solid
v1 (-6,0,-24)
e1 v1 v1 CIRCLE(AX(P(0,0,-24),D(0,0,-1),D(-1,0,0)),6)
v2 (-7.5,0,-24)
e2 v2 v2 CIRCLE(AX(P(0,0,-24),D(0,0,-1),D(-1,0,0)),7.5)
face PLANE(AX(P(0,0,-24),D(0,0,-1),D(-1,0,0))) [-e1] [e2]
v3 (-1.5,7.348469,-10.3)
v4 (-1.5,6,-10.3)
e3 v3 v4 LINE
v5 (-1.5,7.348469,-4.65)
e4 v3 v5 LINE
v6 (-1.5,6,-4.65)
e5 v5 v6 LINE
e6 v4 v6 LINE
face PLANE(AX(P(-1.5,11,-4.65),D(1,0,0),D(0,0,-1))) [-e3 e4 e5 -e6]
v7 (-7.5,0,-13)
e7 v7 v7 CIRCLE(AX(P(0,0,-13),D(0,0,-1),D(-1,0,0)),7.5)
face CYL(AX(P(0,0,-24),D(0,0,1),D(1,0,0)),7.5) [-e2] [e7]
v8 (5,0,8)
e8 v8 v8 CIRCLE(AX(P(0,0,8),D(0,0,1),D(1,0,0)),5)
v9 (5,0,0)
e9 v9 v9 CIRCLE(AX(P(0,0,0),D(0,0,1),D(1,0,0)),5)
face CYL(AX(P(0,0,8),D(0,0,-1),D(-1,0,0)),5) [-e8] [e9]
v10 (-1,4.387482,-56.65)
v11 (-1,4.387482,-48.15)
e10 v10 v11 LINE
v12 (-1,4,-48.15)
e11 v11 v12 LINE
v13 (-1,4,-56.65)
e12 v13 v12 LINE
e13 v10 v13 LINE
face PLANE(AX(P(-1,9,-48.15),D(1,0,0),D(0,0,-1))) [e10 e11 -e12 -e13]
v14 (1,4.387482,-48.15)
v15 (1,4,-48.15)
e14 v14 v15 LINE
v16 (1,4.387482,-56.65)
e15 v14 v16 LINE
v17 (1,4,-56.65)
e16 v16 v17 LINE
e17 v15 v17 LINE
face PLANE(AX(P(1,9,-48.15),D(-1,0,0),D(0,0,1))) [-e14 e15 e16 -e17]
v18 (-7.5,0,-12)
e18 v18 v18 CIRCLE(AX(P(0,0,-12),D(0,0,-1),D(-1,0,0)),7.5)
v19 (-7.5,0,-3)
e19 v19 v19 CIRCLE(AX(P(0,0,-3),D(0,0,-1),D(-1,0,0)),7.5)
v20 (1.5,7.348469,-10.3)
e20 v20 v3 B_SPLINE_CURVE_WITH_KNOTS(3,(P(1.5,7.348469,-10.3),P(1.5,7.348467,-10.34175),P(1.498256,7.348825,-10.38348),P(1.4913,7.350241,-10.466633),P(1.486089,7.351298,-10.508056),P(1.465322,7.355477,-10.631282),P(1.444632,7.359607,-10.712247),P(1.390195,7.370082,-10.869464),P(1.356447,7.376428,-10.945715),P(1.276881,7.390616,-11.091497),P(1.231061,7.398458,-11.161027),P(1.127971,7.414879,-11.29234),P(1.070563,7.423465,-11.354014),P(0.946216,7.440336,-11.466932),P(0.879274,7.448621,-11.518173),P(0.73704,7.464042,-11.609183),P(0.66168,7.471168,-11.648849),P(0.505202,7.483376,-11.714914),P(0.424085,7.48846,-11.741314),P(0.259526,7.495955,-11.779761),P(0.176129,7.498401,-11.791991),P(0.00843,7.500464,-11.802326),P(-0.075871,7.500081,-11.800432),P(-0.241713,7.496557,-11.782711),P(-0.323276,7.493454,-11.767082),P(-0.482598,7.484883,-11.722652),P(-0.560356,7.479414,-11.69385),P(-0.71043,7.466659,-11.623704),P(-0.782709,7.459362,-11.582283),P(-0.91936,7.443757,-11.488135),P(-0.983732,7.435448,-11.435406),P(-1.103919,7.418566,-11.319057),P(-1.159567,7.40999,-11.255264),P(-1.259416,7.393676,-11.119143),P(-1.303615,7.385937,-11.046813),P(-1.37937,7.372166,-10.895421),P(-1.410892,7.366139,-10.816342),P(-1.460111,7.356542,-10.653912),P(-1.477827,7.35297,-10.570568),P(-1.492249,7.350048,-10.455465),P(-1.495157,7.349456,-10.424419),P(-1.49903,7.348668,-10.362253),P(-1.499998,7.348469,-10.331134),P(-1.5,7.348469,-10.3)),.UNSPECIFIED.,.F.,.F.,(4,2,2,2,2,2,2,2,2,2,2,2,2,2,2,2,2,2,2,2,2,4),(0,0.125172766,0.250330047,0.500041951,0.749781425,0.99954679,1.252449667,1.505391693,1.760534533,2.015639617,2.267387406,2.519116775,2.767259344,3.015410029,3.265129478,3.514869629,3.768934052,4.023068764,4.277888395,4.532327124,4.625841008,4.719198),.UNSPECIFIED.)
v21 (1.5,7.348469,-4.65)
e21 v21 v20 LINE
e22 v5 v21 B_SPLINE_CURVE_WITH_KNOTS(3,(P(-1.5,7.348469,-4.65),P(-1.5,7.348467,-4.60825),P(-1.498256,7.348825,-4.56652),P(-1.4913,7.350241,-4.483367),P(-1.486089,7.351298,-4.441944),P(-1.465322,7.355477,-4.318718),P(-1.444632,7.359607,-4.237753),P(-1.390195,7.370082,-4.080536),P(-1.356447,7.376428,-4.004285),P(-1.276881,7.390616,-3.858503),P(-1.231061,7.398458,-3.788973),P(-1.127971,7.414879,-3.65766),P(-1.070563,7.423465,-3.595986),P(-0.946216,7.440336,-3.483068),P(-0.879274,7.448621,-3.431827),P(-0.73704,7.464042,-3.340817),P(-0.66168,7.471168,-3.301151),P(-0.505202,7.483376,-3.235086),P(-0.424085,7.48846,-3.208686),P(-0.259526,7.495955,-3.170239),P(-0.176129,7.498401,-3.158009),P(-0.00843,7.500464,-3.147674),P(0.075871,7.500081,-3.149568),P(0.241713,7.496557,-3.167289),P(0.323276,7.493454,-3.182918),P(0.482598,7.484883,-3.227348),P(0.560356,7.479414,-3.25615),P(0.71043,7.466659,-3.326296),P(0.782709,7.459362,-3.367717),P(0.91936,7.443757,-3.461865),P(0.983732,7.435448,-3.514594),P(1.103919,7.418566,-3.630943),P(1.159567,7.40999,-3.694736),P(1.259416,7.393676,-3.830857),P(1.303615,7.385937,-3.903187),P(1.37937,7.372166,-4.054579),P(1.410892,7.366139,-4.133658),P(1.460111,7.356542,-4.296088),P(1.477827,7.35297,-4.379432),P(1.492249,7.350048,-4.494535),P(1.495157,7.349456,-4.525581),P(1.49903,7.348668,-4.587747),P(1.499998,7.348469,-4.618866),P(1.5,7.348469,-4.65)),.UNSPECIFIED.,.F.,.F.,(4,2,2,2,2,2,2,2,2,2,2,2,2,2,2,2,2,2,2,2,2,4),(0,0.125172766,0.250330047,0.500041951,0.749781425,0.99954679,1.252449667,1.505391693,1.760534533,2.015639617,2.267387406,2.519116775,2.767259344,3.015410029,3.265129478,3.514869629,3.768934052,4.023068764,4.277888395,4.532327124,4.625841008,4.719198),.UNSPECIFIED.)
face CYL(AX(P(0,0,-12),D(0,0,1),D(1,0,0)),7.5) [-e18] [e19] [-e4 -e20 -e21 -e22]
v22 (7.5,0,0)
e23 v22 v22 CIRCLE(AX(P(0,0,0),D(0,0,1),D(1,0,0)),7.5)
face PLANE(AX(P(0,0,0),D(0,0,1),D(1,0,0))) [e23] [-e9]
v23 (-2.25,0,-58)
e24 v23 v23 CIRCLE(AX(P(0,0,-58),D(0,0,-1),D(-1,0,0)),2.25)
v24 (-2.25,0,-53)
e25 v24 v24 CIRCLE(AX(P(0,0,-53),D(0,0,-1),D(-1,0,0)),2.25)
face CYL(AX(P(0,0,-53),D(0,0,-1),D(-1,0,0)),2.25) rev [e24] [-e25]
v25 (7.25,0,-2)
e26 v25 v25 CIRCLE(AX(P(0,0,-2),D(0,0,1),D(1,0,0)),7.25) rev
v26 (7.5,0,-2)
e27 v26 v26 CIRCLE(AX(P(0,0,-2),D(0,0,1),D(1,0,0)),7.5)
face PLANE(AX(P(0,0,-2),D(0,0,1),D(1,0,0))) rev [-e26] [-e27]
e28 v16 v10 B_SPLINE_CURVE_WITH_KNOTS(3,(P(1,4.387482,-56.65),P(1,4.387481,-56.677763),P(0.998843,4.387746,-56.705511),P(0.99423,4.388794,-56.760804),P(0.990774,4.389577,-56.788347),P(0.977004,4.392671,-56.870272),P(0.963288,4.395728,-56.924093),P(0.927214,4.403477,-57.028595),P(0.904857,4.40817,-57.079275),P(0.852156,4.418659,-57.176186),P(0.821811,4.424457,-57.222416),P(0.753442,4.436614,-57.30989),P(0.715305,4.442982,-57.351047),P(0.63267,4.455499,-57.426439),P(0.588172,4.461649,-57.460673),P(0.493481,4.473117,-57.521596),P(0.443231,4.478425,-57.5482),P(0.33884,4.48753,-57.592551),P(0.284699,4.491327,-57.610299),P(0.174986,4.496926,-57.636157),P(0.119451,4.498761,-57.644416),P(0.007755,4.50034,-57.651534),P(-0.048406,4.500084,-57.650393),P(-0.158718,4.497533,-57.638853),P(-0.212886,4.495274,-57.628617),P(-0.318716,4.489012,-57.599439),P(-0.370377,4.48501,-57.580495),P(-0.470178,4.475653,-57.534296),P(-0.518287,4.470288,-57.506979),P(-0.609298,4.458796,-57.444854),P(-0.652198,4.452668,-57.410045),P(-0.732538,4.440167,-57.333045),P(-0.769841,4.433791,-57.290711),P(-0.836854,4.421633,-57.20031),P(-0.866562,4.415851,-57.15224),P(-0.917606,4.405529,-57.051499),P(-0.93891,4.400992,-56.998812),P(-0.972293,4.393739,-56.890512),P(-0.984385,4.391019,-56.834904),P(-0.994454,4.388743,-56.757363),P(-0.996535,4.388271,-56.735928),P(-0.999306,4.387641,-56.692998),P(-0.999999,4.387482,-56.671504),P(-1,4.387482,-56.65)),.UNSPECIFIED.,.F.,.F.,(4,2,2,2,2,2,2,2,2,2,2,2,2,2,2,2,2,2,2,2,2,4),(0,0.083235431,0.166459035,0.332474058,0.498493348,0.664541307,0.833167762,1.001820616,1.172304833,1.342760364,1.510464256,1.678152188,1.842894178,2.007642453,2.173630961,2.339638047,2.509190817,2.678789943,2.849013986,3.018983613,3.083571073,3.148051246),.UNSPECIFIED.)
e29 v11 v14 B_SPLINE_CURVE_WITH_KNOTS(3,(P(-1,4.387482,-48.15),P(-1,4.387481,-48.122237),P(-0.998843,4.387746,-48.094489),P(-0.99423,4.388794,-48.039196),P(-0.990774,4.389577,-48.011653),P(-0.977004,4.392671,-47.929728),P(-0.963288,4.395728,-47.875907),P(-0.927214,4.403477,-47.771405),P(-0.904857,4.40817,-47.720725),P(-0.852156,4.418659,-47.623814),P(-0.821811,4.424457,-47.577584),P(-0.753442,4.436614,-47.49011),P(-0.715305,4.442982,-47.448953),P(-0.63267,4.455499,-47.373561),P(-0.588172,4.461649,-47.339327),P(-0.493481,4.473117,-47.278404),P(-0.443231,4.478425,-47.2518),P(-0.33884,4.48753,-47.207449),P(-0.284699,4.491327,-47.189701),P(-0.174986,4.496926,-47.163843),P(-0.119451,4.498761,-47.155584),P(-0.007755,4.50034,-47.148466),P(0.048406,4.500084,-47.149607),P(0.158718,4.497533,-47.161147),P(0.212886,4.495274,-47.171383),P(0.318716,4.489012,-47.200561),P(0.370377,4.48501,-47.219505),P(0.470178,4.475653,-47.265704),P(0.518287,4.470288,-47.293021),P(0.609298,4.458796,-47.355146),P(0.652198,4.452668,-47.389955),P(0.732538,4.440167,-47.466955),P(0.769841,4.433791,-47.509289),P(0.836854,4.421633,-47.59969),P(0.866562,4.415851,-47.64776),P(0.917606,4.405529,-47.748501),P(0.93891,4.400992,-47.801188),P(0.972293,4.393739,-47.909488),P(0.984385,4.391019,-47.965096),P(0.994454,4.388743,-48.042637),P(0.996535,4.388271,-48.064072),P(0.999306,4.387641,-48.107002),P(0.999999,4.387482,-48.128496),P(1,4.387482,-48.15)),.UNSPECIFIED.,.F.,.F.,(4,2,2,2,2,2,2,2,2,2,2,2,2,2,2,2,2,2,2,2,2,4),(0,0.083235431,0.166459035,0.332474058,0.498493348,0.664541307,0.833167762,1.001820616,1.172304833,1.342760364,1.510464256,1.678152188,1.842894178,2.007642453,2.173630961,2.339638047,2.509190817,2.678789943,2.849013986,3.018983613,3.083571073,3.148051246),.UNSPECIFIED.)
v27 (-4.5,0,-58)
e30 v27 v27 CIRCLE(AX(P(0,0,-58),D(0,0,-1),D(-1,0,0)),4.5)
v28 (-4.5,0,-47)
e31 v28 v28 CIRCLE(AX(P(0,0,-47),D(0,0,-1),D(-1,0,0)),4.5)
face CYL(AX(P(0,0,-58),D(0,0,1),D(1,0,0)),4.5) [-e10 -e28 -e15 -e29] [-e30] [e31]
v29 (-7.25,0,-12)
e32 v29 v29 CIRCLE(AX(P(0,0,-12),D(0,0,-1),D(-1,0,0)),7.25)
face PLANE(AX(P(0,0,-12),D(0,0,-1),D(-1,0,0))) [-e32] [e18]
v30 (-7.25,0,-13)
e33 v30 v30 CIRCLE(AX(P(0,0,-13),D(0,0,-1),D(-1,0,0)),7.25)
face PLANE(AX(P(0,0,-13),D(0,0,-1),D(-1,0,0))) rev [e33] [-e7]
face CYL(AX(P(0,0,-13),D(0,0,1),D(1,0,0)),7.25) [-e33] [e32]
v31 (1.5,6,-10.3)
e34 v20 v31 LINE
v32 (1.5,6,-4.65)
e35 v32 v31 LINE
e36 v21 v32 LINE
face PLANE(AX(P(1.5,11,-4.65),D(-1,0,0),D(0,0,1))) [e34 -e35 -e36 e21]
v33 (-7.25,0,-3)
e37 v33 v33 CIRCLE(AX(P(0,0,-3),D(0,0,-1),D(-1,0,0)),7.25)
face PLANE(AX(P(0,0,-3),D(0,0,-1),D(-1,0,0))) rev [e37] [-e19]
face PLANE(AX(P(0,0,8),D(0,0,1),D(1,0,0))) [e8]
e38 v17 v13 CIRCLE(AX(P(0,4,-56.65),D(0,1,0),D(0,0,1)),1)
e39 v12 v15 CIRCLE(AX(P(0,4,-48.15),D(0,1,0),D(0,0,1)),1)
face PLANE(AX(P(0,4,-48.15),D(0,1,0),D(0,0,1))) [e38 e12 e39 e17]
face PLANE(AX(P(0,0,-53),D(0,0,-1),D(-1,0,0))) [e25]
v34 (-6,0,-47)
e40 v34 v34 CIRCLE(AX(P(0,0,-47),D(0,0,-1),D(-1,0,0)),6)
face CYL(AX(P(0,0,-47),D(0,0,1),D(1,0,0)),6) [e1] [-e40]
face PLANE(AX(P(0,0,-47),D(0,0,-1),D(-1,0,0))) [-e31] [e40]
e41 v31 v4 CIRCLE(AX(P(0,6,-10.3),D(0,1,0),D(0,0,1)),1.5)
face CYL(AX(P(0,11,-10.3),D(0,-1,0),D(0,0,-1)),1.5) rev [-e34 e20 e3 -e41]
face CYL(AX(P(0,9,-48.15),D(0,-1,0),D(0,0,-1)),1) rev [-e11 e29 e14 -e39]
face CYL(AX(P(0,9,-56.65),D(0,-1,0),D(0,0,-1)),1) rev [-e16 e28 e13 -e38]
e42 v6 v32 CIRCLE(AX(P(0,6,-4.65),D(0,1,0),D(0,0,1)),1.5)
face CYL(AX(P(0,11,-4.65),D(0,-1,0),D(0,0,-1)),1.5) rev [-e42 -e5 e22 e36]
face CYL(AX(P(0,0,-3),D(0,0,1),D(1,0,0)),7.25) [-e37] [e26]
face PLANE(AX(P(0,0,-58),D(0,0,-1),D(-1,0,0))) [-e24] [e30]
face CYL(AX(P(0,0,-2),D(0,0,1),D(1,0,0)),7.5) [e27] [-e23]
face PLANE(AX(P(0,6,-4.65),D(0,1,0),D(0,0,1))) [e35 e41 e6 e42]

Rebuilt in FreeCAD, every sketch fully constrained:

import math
import FreeCAD as App
import Part
import Sketcher

V = App.Vector
Q = App.Units.Quantity

doc = App.newDocument("Part")
params = doc.addObject("Spreadsheet::Sheet", "Params")
for row, (alias, value) in enumerate([
    ("sketch1_diameter", "10 mm"),
    ("pad1_length", "8 mm"),
    ("sketch2_diameter", "15 mm"),
    ("pad2_length", "2 mm"),
    ("sketch3_diameter", "14.5 mm"),
    ("pad3_length", "1 mm"),
    ("sketch4_diameter", "15 mm"),
    ("pad4_length", "9 mm"),
    ("sketch5_diameter", "14.5 mm"),
    ("pad5_length", "1 mm"),
    ("sketch6_diameter", "15 mm"),
    ("pad6_length", "11 mm"),
    ("sketch7_diameter", "12 mm"),
    ("pad7_length", "23 mm"),
    ("sketch8_diameter", "9 mm"),
    ("pad8_length", "11 mm"),
    ("sketch9_radius", "1.5 mm"),
    ("sketch9_height", "5.65 mm"),
    ("pocket1_length", "5 mm"),
    ("sketch10_radius", "1 mm"),
    ("sketch10_height", "8.5 mm"),
    ("pocket2_length", "5 mm"),
    ("sketch11_diameter", "4.5 mm"),
    ("pocket3_length", "5 mm"),
], start=1):
    params.set(f"A{row}", alias)
    params.set(f"B{row}", "=" + value)
    params.setAlias(f"B{row}", alias)

body = doc.addObject("PartDesign::Body", "Body")

sketch1 = body.newObject("Sketcher::SketchObject", "Sketch")
sketch1.AttachmentSupport = (doc.getObject("XY_Plane"), [""])
sketch1.MapMode = "FlatFace"
sketch1.addGeometry(Part.Circle(V(0, 0, 0), V(0, 0, 1), 5), False)
sketch1.addConstraint([
    Sketcher.Constraint("Coincident", 0, 3, -1, 1),
    Sketcher.Constraint("Diameter", 0, Q("10 mm")),
])
sketch1.setExpression("Constraints[1]", "Params.sketch1_diameter")
pad1 = body.newObject("PartDesign::Pad", "Pad")
pad1.Profile = sketch1
pad1.setExpression("Length", "Params.pad1_length")

sketch2 = body.newObject("Sketcher::SketchObject", "Sketch001")
sketch2.AttachmentSupport = (doc.getObject("XY_Plane"), [""])
sketch2.MapMode = "FlatFace"
sketch2.addGeometry(Part.Circle(V(0, 0, 0), V(0, 0, 1), 8), False)
sketch2.addConstraint([
    Sketcher.Constraint("Coincident", 0, 3, -1, 1),
    Sketcher.Constraint("Diameter", 0, Q("15 mm")),
])
sketch2.setExpression("Constraints[1]", "Params.sketch2_diameter")
pad2 = body.newObject("PartDesign::Pad", "Pad001")
pad2.Profile = sketch2
pad2.setExpression("Length", "Params.pad2_length")
pad2.Reversed = True

sketch3 = body.newObject("Sketcher::SketchObject", "Sketch002")
sketch3.AttachmentSupport = (doc.getObject("XY_Plane"), [""])
sketch3.MapMode = "FlatFace"
sketch3.AttachmentOffset = App.Placement(V(0, 0, -2), App.Rotation())
sketch3.addGeometry(Part.Circle(V(0, 0, 0), V(0, 0, 1), 7), False)
sketch3.addConstraint([
    Sketcher.Constraint("Coincident", 0, 3, -1, 1),
    Sketcher.Constraint("Diameter", 0, Q("14.5 mm")),
])
sketch3.setExpression("Constraints[1]", "Params.sketch3_diameter")
pad3 = body.newObject("PartDesign::Pad", "Pad002")
pad3.Profile = sketch3
pad3.setExpression("Length", "Params.pad3_length")
pad3.Reversed = True

sketch4 = body.newObject("Sketcher::SketchObject", "Sketch003")
sketch4.AttachmentSupport = (doc.getObject("XY_Plane"), [""])
sketch4.MapMode = "FlatFace"
sketch4.AttachmentOffset = App.Placement(V(0, 0, -3), App.Rotation())
sketch4.addGeometry(Part.Circle(V(0, 0, 0), V(0, 0, 1), 8), False)
sketch4.addConstraint([
    Sketcher.Constraint("Coincident", 0, 3, -1, 1),
    Sketcher.Constraint("Diameter", 0, Q("15 mm")),
])
sketch4.setExpression("Constraints[1]", "Params.sketch4_diameter")
pad4 = body.newObject("PartDesign::Pad", "Pad003")
pad4.Profile = sketch4
pad4.setExpression("Length", "Params.pad4_length")
pad4.Reversed = True

sketch5 = body.newObject("Sketcher::SketchObject", "Sketch004")
sketch5.AttachmentSupport = (doc.getObject("XY_Plane"), [""])
sketch5.MapMode = "FlatFace"
sketch5.AttachmentOffset = App.Placement(V(0, 0, -12), App.Rotation())
sketch5.addGeometry(Part.Circle(V(0, 0, 0), V(0, 0, 1), 7), False)
sketch5.addConstraint([
    Sketcher.Constraint("Coincident", 0, 3, -1, 1),
    Sketcher.Constraint("Diameter", 0, Q("14.5 mm")),
])
sketch5.setExpression("Constraints[1]", "Params.sketch5_diameter")
pad5 = body.newObject("PartDesign::Pad", "Pad004")
pad5.Profile = sketch5
pad5.setExpression("Length", "Params.pad5_length")
pad5.Reversed = True

sketch6 = body.newObject("Sketcher::SketchObject", "Sketch005")
sketch6.AttachmentSupport = (doc.getObject("XY_Plane"), [""])
sketch6.MapMode = "FlatFace"
sketch6.AttachmentOffset = App.Placement(V(0, 0, -13), App.Rotation())
sketch6.addGeometry(Part.Circle(V(0, 0, 0), V(0, 0, 1), 8), False)
sketch6.addConstraint([
    Sketcher.Constraint("Coincident", 0, 3, -1, 1),
    Sketcher.Constraint("Diameter", 0, Q("15 mm")),
])
sketch6.setExpression("Constraints[1]", "Params.sketch6_diameter")
pad6 = body.newObject("PartDesign::Pad", "Pad005")
pad6.Profile = sketch6
pad6.setExpression("Length", "Params.pad6_length")
pad6.Reversed = True

sketch7 = body.newObject("Sketcher::SketchObject", "Sketch006")
sketch7.AttachmentSupport = (doc.getObject("XY_Plane"), [""])
sketch7.MapMode = "FlatFace"
sketch7.AttachmentOffset = App.Placement(V(0, 0, -24), App.Rotation())
sketch7.addGeometry(Part.Circle(V(0, 0, 0), V(0, 0, 1), 6), False)
sketch7.addConstraint([
    Sketcher.Constraint("Coincident", 0, 3, -1, 1),
    Sketcher.Constraint("Diameter", 0, Q("12 mm")),
])
sketch7.setExpression("Constraints[1]", "Params.sketch7_diameter")
pad7 = body.newObject("PartDesign::Pad", "Pad006")
pad7.Profile = sketch7
pad7.setExpression("Length", "Params.pad7_length")
pad7.Reversed = True

sketch8 = body.newObject("Sketcher::SketchObject", "Sketch007")
sketch8.AttachmentSupport = (doc.getObject("XY_Plane"), [""])
sketch8.MapMode = "FlatFace"
sketch8.AttachmentOffset = App.Placement(V(0, 0, -47), App.Rotation())
sketch8.addGeometry(Part.Circle(V(0, 0, 0), V(0, 0, 1), 4.5), False)
sketch8.addConstraint([
    Sketcher.Constraint("Coincident", 0, 3, -1, 1),
    Sketcher.Constraint("Diameter", 0, Q("9 mm")),
])
sketch8.setExpression("Constraints[1]", "Params.sketch8_diameter")
pad8 = body.newObject("PartDesign::Pad", "Pad007")
pad8.Profile = sketch8
pad8.setExpression("Length", "Params.pad8_length")
pad8.Reversed = True

sketch9 = body.newObject("Sketcher::SketchObject", "Sketch008")
sketch9.AttachmentSupport = (doc.getObject("XZ_Plane"), [""])
sketch9.MapMode = "FlatFace"
sketch9.AttachmentOffset = App.Placement(V(0, 0, -6), App.Rotation())
sketch9.addGeometry([
    Part.LineSegment(V(-1.5, -10.3, 0), V(-1.5, -4.7, 0)),
    Part.ArcOfCircle(Part.Circle(V(0, -4.7, 0), V(0, 0, 1), 1.5), math.radians(0), math.radians(180)),
    Part.LineSegment(V(1.5, -4.7, 0), V(1.5, -10.3, 0)),
    Part.ArcOfCircle(Part.Circle(V(0, -10.3, 0), V(0, 0, 1), 1.5), math.radians(180), math.radians(360)),
], False)
sketch9.addConstraint([
    Sketcher.Constraint("Tangent", 0, 2, 1, 2),
    Sketcher.Constraint("Tangent", 1, 1, 2, 1),
    Sketcher.Constraint("Tangent", 2, 2, 3, 2),
    Sketcher.Constraint("Tangent", 3, 1, 0, 1),
    Sketcher.Constraint("Vertical", 0),
    Sketcher.Constraint("Vertical", 2),
    Sketcher.Constraint("PointOnObject", 1, 3, -2),
    Sketcher.Constraint("Radius", 1, Q("1.5 mm")),
    Sketcher.Constraint("DistanceY", 0, 1, 0, 2, Q("5.65 mm")),
    Sketcher.Constraint("DistanceY", 3, 3, -1, 1, Q("10.3 mm")),
])
sketch9.setExpression("Constraints[7]", "Params.sketch9_radius")
sketch9.setExpression("Constraints[8]", "Params.sketch9_height")
pocket1 = body.newObject("PartDesign::Pocket", "Pocket")
pocket1.Profile = sketch9
pocket1.setExpression("Length", "Params.pocket1_length")

sketch10 = body.newObject("Sketcher::SketchObject", "Sketch009")
sketch10.AttachmentSupport = (doc.getObject("XZ_Plane"), [""])
sketch10.MapMode = "FlatFace"
sketch10.AttachmentOffset = App.Placement(V(0, 0, -4), App.Rotation())
sketch10.addGeometry([
    Part.LineSegment(V(-1, -56.6, 0), V(-1, -48.1, 0)),
    Part.ArcOfCircle(Part.Circle(V(0, -48.1, 0), V(0, 0, 1), 1), math.radians(0), math.radians(180)),
    Part.LineSegment(V(1, -48.1, 0), V(1, -56.6, 0)),
    Part.ArcOfCircle(Part.Circle(V(0, -56.6, 0), V(0, 0, 1), 1), math.radians(180), math.radians(360)),
], False)
sketch10.addConstraint([
    Sketcher.Constraint("Tangent", 0, 2, 1, 2),
    Sketcher.Constraint("Tangent", 1, 1, 2, 1),
    Sketcher.Constraint("Tangent", 2, 2, 3, 2),
    Sketcher.Constraint("Tangent", 3, 1, 0, 1),
    Sketcher.Constraint("Vertical", 0),
    Sketcher.Constraint("Vertical", 2),
    Sketcher.Constraint("PointOnObject", 1, 3, -2),
    Sketcher.Constraint("Radius", 1, Q("1 mm")),
    Sketcher.Constraint("DistanceY", 0, 1, 0, 2, Q("8.5 mm")),
    Sketcher.Constraint("DistanceY", 1, 3, -1, 1, Q("48.15 mm")),
])
sketch10.setExpression("Constraints[7]", "Params.sketch10_radius")
sketch10.setExpression("Constraints[8]", "Params.sketch10_height")
pocket2 = body.newObject("PartDesign::Pocket", "Pocket001")
pocket2.Profile = sketch10
pocket2.setExpression("Length", "Params.pocket2_length")

sketch11 = body.newObject("Sketcher::SketchObject", "Sketch010")
sketch11.AttachmentSupport = (doc.getObject("XY_Plane"), [""])
sketch11.MapMode = "FlatFace"
sketch11.AttachmentOffset = App.Placement(V(0, 0, -58), App.Rotation())
sketch11.addGeometry(Part.Circle(V(0, 0, 0), V(0, 0, 1), 2.2), False)
sketch11.addConstraint([
    Sketcher.Constraint("Coincident", 0, 3, -1, 1),
    Sketcher.Constraint("Diameter", 0, Q("4.5 mm")),
])
sketch11.setExpression("Constraints[1]", "Params.sketch11_diameter")
pocket3 = body.newObject("PartDesign::Pocket", "Pocket002")
pocket3.Profile = sketch11
pocket3.setExpression("Length", "Params.pocket3_length")
pocket3.Reversed = True

doc.recompute()
